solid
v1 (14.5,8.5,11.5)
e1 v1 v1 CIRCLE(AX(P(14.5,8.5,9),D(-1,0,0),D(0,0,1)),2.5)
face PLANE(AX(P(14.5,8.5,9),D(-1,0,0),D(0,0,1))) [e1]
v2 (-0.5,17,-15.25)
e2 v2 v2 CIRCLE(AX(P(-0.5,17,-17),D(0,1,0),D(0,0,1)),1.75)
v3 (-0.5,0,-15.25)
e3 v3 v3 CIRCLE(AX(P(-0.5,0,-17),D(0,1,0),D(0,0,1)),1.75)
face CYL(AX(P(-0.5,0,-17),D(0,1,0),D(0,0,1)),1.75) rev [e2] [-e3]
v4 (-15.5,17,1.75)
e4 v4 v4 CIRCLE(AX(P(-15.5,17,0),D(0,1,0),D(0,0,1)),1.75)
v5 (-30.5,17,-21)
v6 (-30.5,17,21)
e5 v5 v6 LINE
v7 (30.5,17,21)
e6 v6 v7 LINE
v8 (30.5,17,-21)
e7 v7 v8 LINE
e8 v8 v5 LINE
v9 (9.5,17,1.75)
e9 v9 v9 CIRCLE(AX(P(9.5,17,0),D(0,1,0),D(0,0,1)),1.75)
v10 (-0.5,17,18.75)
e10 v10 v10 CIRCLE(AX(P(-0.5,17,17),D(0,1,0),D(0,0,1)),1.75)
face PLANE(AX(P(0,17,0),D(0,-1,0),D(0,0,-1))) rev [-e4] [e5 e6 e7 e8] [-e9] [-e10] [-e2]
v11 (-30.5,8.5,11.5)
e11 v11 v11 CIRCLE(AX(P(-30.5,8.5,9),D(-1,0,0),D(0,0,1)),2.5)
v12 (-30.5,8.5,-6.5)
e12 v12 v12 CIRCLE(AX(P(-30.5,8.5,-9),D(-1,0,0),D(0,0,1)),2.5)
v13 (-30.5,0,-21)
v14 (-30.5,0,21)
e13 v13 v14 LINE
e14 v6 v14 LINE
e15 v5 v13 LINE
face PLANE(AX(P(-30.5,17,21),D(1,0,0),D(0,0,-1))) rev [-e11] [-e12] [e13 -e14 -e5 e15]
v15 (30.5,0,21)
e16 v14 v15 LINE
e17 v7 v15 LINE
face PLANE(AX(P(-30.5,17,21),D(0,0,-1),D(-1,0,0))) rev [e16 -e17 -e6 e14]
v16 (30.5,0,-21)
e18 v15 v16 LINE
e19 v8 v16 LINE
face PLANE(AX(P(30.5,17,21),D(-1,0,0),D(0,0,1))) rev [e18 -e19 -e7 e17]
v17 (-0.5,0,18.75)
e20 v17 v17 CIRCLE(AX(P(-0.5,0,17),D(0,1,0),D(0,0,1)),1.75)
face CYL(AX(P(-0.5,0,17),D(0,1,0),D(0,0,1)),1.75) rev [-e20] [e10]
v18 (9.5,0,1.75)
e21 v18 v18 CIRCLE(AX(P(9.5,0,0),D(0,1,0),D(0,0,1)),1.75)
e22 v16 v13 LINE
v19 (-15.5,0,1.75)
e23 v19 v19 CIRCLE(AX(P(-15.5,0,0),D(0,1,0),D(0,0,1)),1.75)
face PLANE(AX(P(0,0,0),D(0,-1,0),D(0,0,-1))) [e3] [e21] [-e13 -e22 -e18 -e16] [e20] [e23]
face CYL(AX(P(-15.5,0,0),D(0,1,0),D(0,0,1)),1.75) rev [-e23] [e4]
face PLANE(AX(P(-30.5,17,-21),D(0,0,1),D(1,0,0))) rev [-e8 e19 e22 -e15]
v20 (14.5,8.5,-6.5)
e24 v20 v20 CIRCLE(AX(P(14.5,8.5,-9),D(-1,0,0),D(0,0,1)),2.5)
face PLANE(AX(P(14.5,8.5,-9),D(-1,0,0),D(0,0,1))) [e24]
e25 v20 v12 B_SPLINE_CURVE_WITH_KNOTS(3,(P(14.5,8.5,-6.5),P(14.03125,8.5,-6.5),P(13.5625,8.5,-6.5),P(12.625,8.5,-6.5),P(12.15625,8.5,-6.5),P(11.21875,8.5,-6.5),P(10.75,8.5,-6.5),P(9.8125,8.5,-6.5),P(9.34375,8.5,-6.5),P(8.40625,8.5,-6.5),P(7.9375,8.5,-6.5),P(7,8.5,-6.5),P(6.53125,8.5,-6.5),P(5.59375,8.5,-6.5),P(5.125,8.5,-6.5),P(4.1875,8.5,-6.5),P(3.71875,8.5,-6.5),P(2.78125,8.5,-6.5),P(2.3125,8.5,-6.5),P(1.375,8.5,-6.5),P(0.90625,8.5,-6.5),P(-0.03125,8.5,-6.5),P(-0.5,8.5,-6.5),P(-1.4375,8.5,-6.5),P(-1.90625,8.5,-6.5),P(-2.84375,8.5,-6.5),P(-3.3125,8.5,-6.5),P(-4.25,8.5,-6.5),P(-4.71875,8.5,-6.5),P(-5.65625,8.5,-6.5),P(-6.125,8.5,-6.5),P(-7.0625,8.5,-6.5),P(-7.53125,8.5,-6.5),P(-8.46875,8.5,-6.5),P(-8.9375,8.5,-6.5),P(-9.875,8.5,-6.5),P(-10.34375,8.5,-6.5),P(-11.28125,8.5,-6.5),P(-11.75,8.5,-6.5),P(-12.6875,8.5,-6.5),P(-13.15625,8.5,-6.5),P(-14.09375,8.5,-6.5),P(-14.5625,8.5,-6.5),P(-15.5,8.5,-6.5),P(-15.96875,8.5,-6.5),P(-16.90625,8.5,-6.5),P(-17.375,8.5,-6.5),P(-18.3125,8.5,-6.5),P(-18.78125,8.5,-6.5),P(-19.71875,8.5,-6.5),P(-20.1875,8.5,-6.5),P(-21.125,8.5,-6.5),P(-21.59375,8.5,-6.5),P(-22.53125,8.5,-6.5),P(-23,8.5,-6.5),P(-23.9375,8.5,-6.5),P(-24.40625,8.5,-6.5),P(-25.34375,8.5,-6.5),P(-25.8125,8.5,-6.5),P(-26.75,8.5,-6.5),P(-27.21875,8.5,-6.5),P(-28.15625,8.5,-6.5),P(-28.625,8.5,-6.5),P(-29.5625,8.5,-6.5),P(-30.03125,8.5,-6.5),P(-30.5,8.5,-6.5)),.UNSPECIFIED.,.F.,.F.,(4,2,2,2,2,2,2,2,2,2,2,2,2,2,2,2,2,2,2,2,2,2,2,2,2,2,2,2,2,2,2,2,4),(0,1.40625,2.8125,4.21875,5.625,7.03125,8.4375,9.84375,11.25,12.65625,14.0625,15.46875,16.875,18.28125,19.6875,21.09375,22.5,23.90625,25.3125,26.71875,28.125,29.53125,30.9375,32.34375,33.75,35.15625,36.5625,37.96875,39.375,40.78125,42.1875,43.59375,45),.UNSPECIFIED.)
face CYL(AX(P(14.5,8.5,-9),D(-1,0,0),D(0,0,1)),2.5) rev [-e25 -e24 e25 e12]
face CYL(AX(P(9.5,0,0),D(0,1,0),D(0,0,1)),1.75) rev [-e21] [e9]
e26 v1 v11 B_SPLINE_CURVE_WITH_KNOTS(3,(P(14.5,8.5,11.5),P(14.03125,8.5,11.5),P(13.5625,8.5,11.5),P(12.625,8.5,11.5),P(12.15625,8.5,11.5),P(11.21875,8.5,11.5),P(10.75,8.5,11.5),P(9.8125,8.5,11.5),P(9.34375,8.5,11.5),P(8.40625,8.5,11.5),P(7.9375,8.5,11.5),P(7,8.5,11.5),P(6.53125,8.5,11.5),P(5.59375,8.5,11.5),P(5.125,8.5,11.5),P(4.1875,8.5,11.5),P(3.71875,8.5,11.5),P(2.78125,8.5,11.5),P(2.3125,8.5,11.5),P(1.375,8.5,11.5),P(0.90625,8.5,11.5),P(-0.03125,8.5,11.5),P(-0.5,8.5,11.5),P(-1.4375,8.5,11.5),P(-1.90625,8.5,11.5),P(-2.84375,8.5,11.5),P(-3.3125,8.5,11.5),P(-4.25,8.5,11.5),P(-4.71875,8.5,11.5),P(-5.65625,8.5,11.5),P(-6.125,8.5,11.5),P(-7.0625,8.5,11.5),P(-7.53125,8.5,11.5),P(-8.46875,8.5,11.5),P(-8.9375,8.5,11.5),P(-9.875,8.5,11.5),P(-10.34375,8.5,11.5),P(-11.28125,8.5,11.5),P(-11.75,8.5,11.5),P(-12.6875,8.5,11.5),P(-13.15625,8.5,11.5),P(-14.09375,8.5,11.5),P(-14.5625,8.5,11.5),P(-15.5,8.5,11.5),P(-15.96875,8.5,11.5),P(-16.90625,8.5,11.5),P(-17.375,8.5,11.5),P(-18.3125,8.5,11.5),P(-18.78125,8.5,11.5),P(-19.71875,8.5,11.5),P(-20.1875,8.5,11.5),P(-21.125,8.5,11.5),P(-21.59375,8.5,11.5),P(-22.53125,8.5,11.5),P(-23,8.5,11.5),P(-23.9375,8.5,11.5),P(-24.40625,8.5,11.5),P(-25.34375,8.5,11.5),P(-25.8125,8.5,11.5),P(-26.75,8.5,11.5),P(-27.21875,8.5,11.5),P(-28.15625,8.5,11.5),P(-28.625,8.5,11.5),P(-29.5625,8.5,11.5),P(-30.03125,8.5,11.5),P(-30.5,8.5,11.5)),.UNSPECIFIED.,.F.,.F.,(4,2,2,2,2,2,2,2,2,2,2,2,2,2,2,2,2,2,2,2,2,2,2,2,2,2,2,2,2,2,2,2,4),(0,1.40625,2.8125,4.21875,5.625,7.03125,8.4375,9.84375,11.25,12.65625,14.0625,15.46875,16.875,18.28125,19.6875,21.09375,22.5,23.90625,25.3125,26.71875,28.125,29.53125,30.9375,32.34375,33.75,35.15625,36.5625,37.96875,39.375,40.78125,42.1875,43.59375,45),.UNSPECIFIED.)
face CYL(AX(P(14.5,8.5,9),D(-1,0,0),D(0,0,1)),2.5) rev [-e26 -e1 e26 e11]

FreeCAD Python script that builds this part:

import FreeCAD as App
import Part
import Sketcher
from FreeCAD import Vector
Q = App.Units.Quantity

doc = App.newDocument("Part")
body = doc.addObject("PartDesign::Body", "Body")

# Sketch on XZ plane
sketch1 = body.newObject("Sketcher::SketchObject", "Sketch")
sketch1.AttachmentSupport = (doc.getObject("XZ_Plane"), [""])
sketch1.MapMode = "FlatFace"
sketch1.addGeometry(Part.LineSegment(Vector(-30.5, -21, 0), Vector(-30.5, 21, 0)), False)
sketch1.addGeometry(Part.LineSegment(Vector(-30.5, 21, 0), Vector(30.5, 21, 0)), False)
sketch1.addGeometry(Part.LineSegment(Vector(30.5, 21, 0), Vector(30.5, -21, 0)), False)
sketch1.addGeometry(Part.LineSegment(Vector(30.5, -21, 0), Vector(-30.5, -21, 0)), False)
sketch1.addConstraint(Sketcher.Constraint("Coincident", 0, 2, 1, 1))
sketch1.addConstraint(Sketcher.Constraint("Coincident", 1, 2, 2, 1))
sketch1.addConstraint(Sketcher.Constraint("Coincident", 2, 2, 3, 1))
sketch1.addConstraint(Sketcher.Constraint("Coincident", 3, 2, 0, 1))
sketch1.addConstraint(Sketcher.Constraint("Vertical", 0))
sketch1.addConstraint(Sketcher.Constraint("Horizontal", 1))
sketch1.addConstraint(Sketcher.Constraint("Vertical", 2))
sketch1.addConstraint(Sketcher.Constraint("Horizontal", 3))
sketch1.addConstraint(Sketcher.Constraint("Symmetric", 0, 2, 2, 2, -1, 1))
sketch1.addConstraint(Sketcher.Constraint("DistanceX", 1, 1, 1, 2, Q("61 mm")))
sketch1.addConstraint(Sketcher.Constraint("DistanceY", 0, 1, 0, 2, Q("42 mm")))
pad1 = body.newObject("PartDesign::Pad", "Pad")
pad1.Profile = sketch1
pad1.Length = 17
pad1.Reversed = True

# Sketch on XZ plane
sketch2 = body.newObject("Sketcher::SketchObject", "Sketch001")
sketch2.AttachmentSupport = (doc.getObject("XZ_Plane"), [""])
sketch2.MapMode = "FlatFace"
sketch2.AttachmentOffset = App.Placement(Vector(0, 0, -17), App.Rotation())
sketch2.addGeometry(Part.Circle(Vector(-0.5, -17, 0), Vector(0, 0, 1), 1.75), False)
sketch2.addGeometry(Part.Circle(Vector(-0.5, 17, 0), Vector(0, 0, 1), 1.75), False)
sketch2.addGeometry(Part.Circle(Vector(-15.5, 0, 0), Vector(0, 0, 1), 1.75), False)
sketch2.addGeometry(Part.Circle(Vector(9.5, 0, 0), Vector(0, 0, 1), 1.75), False)
sketch2.addConstraint(Sketcher.Constraint("Equal", 0, 1))
sketch2.addConstraint(Sketcher.Constraint("Equal", 1, 2))
sketch2.addConstraint(Sketcher.Constraint("Equal", 2, 3))
sketch2.addConstraint(Sketcher.Constraint("Symmetric", 0, 3, 1, 3, -1))
sketch2.addConstraint(Sketcher.Constraint("PointOnObject", 2, 3, -1))
sketch2.addConstraint(Sketcher.Constraint("PointOnObject", 3, 3, -1))
sketch2.addConstraint(Sketcher.Constraint("Diameter", 0, Q("3.5 mm")))
sketch2.addConstraint(Sketcher.Constraint("DistanceY", 0, 3, -1, 1, Q("17 mm")))
sketch2.addConstraint(Sketcher.Constraint("DistanceX", 2, 3, 0, 3, Q("15 mm")))
sketch2.addConstraint(Sketcher.Constraint("DistanceX", 0, 3, 3, 3, Q("10 mm")))
sketch2.addConstraint(Sketcher.Constraint("DistanceX", 0, 3, -1, 1, Q("0.5 mm")))
pocket1 = body.newObject("PartDesign::Pocket", "Pocket")
pocket1.Profile = sketch2
pocket1.Length = 17
pocket1.Reversed = True

# Sketch on YZ plane
sketch3 = body.newObject("Sketcher::SketchObject", "Sketch002")
sketch3.AttachmentSupport = (doc.getObject("YZ_Plane"), [""])
sketch3.MapMode = "FlatFace"
sketch3.AttachmentOffset = App.Placement(Vector(0, 0, -30.5), App.Rotation())
sketch3.addGeometry(Part.Circle(Vector(8.5, -9, 0), Vector(0, 0, 1), 2.5), False)
sketch3.addGeometry(Part.Circle(Vector(8.5, 9, 0), Vector(0, 0, 1), 2.5), False)
sketch3.addConstraint(Sketcher.Constraint("Equal", 0, 1))
sketch3.addConstraint(Sketcher.Constraint("Symmetric", 0, 3, 1, 3, -1))
sketch3.addConstraint(Sketcher.Constraint("Diameter", 0, Q("5 mm")))
sketch3.addConstraint(Sketcher.Constraint("DistanceY", 0, 3, -1, 1, Q("9 mm")))
sketch3.addConstraint(Sketcher.Constraint("DistanceX", -1, 1, 0, 3, Q("8.5 mm")))
pocket2 = body.newObject("PartDesign::Pocket", "Pocket001")
pocket2.Profile = sketch3
pocket2.Length = 45
pocket2.Reversed = True

doc.recompute()
